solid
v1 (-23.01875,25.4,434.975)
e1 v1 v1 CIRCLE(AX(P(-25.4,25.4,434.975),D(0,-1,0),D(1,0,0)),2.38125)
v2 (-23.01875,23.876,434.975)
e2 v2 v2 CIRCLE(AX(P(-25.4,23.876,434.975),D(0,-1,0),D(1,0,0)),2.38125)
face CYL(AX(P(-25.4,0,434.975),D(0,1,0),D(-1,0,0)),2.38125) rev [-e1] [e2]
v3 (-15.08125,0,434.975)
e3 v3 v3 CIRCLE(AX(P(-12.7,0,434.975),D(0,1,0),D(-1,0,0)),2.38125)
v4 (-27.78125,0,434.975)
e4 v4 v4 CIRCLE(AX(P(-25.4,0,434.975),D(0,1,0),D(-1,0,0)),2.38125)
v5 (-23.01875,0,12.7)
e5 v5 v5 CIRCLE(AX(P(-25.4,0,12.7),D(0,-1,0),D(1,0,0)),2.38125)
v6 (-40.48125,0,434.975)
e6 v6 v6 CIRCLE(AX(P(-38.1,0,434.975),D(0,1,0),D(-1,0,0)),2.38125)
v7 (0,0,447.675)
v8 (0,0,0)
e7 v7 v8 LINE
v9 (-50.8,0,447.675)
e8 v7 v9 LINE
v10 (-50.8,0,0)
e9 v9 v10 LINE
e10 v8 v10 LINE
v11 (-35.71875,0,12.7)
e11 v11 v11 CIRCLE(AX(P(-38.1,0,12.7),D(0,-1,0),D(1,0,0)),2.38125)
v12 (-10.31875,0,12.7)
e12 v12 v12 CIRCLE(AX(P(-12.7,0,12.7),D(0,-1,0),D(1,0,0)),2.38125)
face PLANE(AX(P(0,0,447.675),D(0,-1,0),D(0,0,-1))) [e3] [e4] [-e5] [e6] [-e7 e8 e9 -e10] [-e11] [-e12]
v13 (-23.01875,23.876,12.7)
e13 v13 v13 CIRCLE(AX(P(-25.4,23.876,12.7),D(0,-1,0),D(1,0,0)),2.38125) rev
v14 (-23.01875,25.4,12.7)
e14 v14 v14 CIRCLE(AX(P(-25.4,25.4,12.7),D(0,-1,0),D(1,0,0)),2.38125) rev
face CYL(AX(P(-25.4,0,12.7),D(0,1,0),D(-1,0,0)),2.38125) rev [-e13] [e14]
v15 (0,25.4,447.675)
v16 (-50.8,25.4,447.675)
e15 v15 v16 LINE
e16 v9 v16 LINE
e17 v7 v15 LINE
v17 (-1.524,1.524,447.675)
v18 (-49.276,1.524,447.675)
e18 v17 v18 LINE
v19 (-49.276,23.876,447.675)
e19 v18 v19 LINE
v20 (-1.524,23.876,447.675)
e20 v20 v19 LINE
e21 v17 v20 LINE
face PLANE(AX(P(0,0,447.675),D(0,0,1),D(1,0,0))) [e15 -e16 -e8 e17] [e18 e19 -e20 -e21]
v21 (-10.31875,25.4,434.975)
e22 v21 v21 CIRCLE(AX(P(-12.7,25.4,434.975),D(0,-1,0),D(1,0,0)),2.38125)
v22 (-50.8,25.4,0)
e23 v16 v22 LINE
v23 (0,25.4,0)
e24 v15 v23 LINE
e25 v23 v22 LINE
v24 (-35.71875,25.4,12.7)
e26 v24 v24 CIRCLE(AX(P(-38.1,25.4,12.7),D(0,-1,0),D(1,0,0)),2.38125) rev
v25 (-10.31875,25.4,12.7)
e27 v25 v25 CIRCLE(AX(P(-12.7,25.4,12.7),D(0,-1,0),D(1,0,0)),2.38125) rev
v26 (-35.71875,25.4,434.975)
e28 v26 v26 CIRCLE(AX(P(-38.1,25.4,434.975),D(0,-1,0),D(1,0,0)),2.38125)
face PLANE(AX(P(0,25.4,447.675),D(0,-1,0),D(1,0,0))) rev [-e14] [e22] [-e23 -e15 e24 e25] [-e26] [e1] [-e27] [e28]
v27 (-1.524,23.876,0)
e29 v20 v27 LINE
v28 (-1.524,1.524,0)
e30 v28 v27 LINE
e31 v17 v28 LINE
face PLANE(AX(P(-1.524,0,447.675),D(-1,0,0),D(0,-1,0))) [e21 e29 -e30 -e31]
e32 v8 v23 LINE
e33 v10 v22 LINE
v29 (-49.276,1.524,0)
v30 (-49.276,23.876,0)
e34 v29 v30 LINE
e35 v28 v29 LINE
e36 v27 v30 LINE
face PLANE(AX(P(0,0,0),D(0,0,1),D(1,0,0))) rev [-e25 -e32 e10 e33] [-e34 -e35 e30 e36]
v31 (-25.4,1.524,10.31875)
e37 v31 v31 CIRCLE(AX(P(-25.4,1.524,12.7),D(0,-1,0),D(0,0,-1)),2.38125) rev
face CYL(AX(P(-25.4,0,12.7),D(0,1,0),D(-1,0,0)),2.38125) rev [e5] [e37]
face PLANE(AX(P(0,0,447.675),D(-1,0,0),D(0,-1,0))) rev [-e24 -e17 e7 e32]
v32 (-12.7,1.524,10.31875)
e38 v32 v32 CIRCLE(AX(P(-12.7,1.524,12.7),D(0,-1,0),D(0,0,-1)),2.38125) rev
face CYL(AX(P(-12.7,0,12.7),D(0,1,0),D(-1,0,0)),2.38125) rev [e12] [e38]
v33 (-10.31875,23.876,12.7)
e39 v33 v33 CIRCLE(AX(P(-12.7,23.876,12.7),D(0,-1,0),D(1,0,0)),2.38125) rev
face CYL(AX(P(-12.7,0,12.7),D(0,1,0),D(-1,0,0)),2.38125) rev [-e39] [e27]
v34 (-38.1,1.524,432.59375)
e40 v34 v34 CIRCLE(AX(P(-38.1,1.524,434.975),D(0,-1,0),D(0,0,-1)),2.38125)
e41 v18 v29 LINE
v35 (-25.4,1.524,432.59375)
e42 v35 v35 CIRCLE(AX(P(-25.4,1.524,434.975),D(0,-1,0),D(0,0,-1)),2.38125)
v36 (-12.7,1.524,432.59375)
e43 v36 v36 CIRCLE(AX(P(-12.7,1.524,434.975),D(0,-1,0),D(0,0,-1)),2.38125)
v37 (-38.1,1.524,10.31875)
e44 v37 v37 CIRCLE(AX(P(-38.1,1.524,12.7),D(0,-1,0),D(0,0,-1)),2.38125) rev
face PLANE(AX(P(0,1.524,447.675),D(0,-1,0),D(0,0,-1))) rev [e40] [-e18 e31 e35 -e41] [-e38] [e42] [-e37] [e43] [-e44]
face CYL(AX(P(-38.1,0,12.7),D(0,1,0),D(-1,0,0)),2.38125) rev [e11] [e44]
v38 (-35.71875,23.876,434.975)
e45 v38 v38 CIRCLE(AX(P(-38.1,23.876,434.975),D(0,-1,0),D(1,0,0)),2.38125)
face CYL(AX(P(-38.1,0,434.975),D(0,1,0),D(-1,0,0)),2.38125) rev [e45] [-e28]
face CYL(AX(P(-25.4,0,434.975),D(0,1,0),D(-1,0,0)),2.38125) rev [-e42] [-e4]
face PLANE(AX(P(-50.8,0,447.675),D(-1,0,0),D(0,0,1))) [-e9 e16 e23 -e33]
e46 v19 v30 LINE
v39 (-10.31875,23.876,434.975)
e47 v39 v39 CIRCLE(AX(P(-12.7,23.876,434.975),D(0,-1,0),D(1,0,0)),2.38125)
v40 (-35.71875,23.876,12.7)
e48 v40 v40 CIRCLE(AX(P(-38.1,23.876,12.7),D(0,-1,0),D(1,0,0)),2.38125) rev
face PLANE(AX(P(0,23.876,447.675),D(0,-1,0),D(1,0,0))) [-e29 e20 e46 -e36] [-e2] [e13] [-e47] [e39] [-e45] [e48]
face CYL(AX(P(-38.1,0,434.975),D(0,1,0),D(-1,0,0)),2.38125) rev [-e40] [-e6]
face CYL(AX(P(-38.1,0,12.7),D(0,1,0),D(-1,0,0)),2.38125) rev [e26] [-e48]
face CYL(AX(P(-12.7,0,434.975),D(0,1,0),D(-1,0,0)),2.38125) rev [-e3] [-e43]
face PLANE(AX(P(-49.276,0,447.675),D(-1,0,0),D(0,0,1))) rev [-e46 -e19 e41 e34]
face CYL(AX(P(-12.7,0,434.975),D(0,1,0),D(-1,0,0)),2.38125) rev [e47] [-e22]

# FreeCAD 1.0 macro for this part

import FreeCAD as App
import Part
import Sketcher
from FreeCAD import Vector
Q = App.Units.Quantity


def add_polygon(sketch, points):
    """Adds a closed chain of lines whose ends are joined by coincident constraints."""
    first, n = sketch.GeometryCount, len(points)
    for a, b in zip(points, points[1:] + points[:1]):
        sketch.addGeometry(Part.LineSegment(App.Vector(*a, 0), App.Vector(*b, 0)), False)
    for i in range(n):
        sketch.addConstraint(Sketcher.Constraint("Coincident", first + i, 2, first + (i + 1) % n, 1))

doc = App.newDocument("Part")
body = doc.addObject("PartDesign::Body", "Body")

# Sketch on XY plane
sketch1 = doc.addObject("Sketcher::SketchObject", "Sketch")
body.addObject(sketch1)
sketch1.AttachmentSupport = (doc.XY_Plane, [""])
sketch1.MapMode = "FlatFace"
add_polygon(sketch1, [(-51, 25), (-51, 0), (0, 0), (0, 25)])  # lines 0-3
add_polygon(sketch1, [(-2, 2), (-49, 2), (-49, 24), (-2, 24)])  # lines 4-7
sketch1.addConstraint(Sketcher.Constraint("Vertical", 0))
sketch1.addConstraint(Sketcher.Constraint("Horizontal", 1))
sketch1.addConstraint(Sketcher.Constraint("Vertical", 2))
sketch1.addConstraint(Sketcher.Constraint("Horizontal", 3))
sketch1.addConstraint(Sketcher.Constraint("Horizontal", 4))
sketch1.addConstraint(Sketcher.Constraint("Vertical", 5))
sketch1.addConstraint(Sketcher.Constraint("Horizontal", 6))
sketch1.addConstraint(Sketcher.Constraint("Vertical", 7))
sketch1.addConstraint(Sketcher.Constraint("Coincident", 1, 2, -1, 1))
sketch1.addConstraint(Sketcher.Constraint("DistanceX", 1, 1, 1, 2, Q("2 in")))
sketch1.addConstraint(Sketcher.Constraint("DistanceY", 0, 2, 0, 1, Q("1 in")))
sketch1.addConstraint(Sketcher.Constraint("DistanceX", 4, 2, 4, 1, Q("1.88 in")))
sketch1.addConstraint(Sketcher.Constraint("DistanceY", 5, 1, 5, 2, Q("0.88 in")))
sketch1.addConstraint(Sketcher.Constraint("DistanceX", 4, 2, -1, 1, Q("1.94 in")))
sketch1.addConstraint(Sketcher.Constraint("DistanceY", -1, 1, 4, 2, Q("0.06 in")))
pad1 = doc.addObject("PartDesign::Pad", "Pad")
body.addObject(pad1)
pad1.Profile = sketch1
pad1.Length = Q("17.625 in")

# Sketch on XZ plane
sketch2 = doc.addObject("Sketcher::SketchObject", "Sketch001")
body.addObject(sketch2)
sketch2.AttachmentSupport = (doc.XZ_Plane, [""])
sketch2.MapMode = "FlatFace"
sketch2.AttachmentOffset = App.Placement(Vector(0, 0, -1 * 25.4), App.Rotation())
sketch2.addGeometry(Part.Circle(Vector(-38.1, 435, 0), Vector(0, 0, 1), 2.4), False)
sketch2.addGeometry(Part.Circle(Vector(-25.4, 435, 0), Vector(0, 0, 1), 2.4), False)
sketch2.addGeometry(Part.Circle(Vector(-12.7, 435, 0), Vector(0, 0, 1), 2.4), False)
sketch2.addGeometry(Part.Circle(Vector(-38.1, 12.7, 0), Vector(0, 0, 1), 2.4), False)
sketch2.addGeometry(Part.Circle(Vector(-12.7, 12.7, 0), Vector(0, 0, 1), 2.4), False)
sketch2.addGeometry(Part.Circle(Vector(-25.4, 12.7, 0), Vector(0, 0, 1), 2.4), False)
sketch2.addConstraint(Sketcher.Constraint("Equal", 0, 1))
sketch2.addConstraint(Sketcher.Constraint("Equal", 1, 2))
sketch2.addConstraint(Sketcher.Constraint("Equal", 2, 3))
sketch2.addConstraint(Sketcher.Constraint("Equal", 3, 4))
sketch2.addConstraint(Sketcher.Constraint("Equal", 4, 5))
sketch2.addConstraint(Sketcher.Constraint("Horizontal", 0, 3, 1, 3))
sketch2.addConstraint(Sketcher.Constraint("Horizontal", 1, 3, 2, 3))
sketch2.addConstraint(Sketcher.Constraint("Horizontal", 3, 3, 4, 3))
sketch2.addConstraint(Sketcher.Constraint("Horizontal", 4, 3, 5, 3))
sketch2.addConstraint(Sketcher.Constraint("Vertical", 0, 3, 3, 3))
sketch2.addConstraint(Sketcher.Constraint("Vertical", 2, 3, 4, 3))
sketch2.addConstraint(Sketcher.Constraint("Vertical", 1, 3, 5, 3))
sketch2.addConstraint(Sketcher.Constraint("Diameter", 0, Q("0.1875 in")))
sketch2.addConstraint(Sketcher.Constraint("DistanceX", 1, 3, -1, 1, Q("1 in")))
sketch2.addConstraint(Sketcher.Constraint("DistanceX", 0, 3, 2, 3, Q("1 in")))
sketch2.addConstraint(Sketcher.Constraint("DistanceX", 0, 3, -1, 1, Q("1.5 in")))
sketch2.addConstraint(Sketcher.Constraint("DistanceY", -1, 1, 3, 3, Q("0.5 in")))
sketch2.addConstraint(Sketcher.Constraint("DistanceY", -1, 1, 0, 3, Q("17.125 in")))
pocket1 = doc.addObject("PartDesign::Pocket", "Pocket")
body.addObject(pocket1)
pocket1.Profile = sketch2
pocket1.Type = "ThroughAll"
pocket1.Midplane = True

doc.recompute()
